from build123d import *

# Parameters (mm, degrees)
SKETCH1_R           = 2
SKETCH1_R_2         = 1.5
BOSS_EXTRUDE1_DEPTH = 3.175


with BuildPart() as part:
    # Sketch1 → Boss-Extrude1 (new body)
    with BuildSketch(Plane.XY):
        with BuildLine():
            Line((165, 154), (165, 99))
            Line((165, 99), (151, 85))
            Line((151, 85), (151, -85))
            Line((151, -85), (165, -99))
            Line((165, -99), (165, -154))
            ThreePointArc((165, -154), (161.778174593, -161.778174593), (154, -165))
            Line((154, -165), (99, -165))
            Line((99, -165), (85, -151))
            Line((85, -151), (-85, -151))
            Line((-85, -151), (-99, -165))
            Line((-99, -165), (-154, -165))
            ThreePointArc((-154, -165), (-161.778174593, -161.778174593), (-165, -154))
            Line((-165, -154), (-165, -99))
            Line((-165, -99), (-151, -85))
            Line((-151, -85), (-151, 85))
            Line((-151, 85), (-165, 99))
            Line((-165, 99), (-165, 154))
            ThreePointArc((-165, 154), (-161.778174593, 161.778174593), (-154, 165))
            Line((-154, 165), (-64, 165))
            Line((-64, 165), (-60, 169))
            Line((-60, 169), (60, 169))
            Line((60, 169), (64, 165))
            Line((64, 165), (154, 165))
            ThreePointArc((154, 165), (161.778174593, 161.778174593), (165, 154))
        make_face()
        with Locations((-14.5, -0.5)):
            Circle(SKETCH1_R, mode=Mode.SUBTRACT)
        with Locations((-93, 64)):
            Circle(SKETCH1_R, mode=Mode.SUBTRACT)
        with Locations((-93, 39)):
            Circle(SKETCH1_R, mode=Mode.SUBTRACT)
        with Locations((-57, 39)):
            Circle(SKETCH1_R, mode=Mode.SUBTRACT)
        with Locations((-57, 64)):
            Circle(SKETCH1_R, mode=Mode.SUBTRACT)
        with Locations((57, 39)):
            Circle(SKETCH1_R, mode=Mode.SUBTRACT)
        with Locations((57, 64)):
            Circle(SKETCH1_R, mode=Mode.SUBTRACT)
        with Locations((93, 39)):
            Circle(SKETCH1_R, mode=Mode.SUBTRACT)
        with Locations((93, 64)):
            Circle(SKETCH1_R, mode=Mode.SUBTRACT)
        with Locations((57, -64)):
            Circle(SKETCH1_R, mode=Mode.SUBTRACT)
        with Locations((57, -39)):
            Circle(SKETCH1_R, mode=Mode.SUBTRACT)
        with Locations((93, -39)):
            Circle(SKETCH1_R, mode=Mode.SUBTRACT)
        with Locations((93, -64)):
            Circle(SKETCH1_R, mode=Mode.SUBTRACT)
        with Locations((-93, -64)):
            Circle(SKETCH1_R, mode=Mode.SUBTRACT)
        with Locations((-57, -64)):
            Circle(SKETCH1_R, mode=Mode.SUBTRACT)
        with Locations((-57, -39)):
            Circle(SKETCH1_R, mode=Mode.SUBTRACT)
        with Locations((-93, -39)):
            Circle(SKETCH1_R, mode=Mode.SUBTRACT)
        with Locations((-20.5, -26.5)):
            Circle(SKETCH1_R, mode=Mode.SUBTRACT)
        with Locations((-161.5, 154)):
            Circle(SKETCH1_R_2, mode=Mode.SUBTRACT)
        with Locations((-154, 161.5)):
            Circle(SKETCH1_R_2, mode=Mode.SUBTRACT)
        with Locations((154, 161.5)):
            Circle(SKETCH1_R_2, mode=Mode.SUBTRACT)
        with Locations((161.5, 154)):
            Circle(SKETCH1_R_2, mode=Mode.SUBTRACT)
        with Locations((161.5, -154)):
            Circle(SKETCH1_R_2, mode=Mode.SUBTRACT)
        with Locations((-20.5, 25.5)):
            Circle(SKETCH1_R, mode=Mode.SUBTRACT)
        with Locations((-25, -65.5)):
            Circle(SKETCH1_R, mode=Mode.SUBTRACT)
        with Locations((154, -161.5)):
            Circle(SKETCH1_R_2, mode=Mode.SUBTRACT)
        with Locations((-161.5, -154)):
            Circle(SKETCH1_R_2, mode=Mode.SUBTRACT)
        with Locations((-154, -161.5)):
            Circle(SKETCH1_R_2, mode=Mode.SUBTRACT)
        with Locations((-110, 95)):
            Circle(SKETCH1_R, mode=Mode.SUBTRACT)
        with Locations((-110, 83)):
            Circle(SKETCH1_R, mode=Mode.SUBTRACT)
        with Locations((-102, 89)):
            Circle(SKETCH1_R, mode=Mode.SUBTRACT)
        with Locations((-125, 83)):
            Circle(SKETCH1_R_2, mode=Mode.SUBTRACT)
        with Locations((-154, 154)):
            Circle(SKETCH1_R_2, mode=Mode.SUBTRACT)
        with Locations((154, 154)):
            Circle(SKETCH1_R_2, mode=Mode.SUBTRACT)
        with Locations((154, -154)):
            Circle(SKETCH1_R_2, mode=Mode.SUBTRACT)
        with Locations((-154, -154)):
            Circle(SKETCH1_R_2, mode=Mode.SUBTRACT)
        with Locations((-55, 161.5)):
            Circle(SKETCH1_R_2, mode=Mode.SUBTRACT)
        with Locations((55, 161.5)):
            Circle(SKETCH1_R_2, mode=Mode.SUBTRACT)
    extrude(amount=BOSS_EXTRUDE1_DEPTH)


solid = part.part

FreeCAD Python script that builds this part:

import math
import FreeCAD as App
import Part
import Sketcher

V = App.Vector

doc = App.newDocument("Part")
body = doc.addObject("PartDesign::Body", "Body")

# Sketch on XY plane
sketch1 = body.newObject("Sketcher::SketchObject", "Sketch")
sketch1.AttachmentSupport = (doc.getObject("XY_Plane"), [""])
sketch1.MapMode = "FlatFace"
sketch1.addGeometry([
    Part.LineSegment(V(165, 99, 0), V(165, 154, 0)),  # 0
    Part.ArcOfCircle(Part.Circle(V(154, 154, 0), V(0, 0, 1), 11), math.radians(0), math.radians(90)),  # 1
    Part.LineSegment(V(154, 165, 0), V(64, 165, 0)),  # 2
    Part.LineSegment(V(64, 165, 0), V(60, 169, 0)),  # 3
    Part.LineSegment(V(60, 169, 0), V(-60, 169, 0)),  # 4
    Part.LineSegment(V(-60, 169, 0), V(-64, 165, 0)),  # 5
    Part.LineSegment(V(-64, 165, 0), V(-154, 165, 0)),  # 6
    Part.ArcOfCircle(Part.Circle(V(-154, 154, 0), V(0, 0, 1), 11), math.radians(90), math.radians(180)),  # 7
    Part.LineSegment(V(-165, 154, 0), V(-165, 99, 0)),  # 8
    Part.LineSegment(V(-165, 99, 0), V(-151, 85, 0)),  # 9
    Part.LineSegment(V(-151, 85, 0), V(-151, -85, 0)),  # 10
    Part.LineSegment(V(-151, -85, 0), V(-165, -99, 0)),  # 11
    Part.LineSegment(V(-165, -99, 0), V(-165, -154, 0)),  # 12
    Part.ArcOfCircle(Part.Circle(V(-154, -154, 0), V(0, 0, 1), 11), math.radians(180), math.radians(270)),  # 13
    Part.LineSegment(V(-154, -165, 0), V(-99, -165, 0)),  # 14
    Part.LineSegment(V(-99, -165, 0), V(-85, -151, 0)),  # 15
    Part.LineSegment(V(-85, -151, 0), V(85, -151, 0)),  # 16
    Part.LineSegment(V(85, -151, 0), V(99, -165, 0)),  # 17
    Part.LineSegment(V(99, -165, 0), V(154, -165, 0)),  # 18
    Part.ArcOfCircle(Part.Circle(V(154, -154, 0), V(0, 0, 1), 11), math.radians(-90), math.radians(0)),  # 19
    Part.LineSegment(V(165, -154, 0), V(165, -99, 0)),  # 20
    Part.LineSegment(V(165, -99, 0), V(151, -85, 0)),  # 21
    Part.LineSegment(V(151, -85, 0), V(151, 85, 0)),  # 22
    Part.LineSegment(V(151, 85, 0), V(165, 99, 0)),  # 23
    Part.Circle(V(154, -161.5, 0), V(0, 0, 1), 1.5),  # 24
    Part.Circle(V(161.5, -154, 0), V(0, 0, 1), 1.5),  # 25
    Part.Circle(V(154, -154, 0), V(0, 0, 1), 1.5),  # 26
    Part.Circle(V(93, -64, 0), V(0, 0, 1), 2),  # 27
    Part.Circle(V(93, -39, 0), V(0, 0, 1), 2),  # 28
    Part.Circle(V(57, -64, 0), V(0, 0, 1), 2),  # 29
    Part.Circle(V(57, -39, 0), V(0, 0, 1), 2),  # 30
    Part.Circle(V(-154, -161.5, 0), V(0, 0, 1), 1.5),  # 31
    Part.Circle(V(-154, -154, 0), V(0, 0, 1), 1.5),  # 32
    Part.Circle(V(-161.5, -154, 0), V(0, 0, 1), 1.5),  # 33
    Part.Circle(V(-25, -65.5, 0), V(0, 0, 1), 2),  # 34
    Part.Circle(V(-57, -64, 0), V(0, 0, 1), 2),  # 35
    Part.Circle(V(-20.5, -26.5, 0), V(0, 0, 1), 2),  # 36
    Part.Circle(V(-14.5, -0.5, 0), V(0, 0, 1), 2),  # 37
    Part.Circle(V(-57, -39, 0), V(0, 0, 1), 2),  # 38
    Part.Circle(V(-93, -64, 0), V(0, 0, 1), 2),  # 39
    Part.Circle(V(-93, -39, 0), V(0, 0, 1), 2),  # 40
    Part.Circle(V(93, 39, 0), V(0, 0, 1), 2),  # 41
    Part.Circle(V(93, 64, 0), V(0, 0, 1), 2),  # 42
    Part.Circle(V(57, 39, 0), V(0, 0, 1), 2),  # 43
    Part.Circle(V(57, 64, 0), V(0, 0, 1), 2),  # 44
    Part.Circle(V(161.5, 154, 0), V(0, 0, 1), 1.5),  # 45
    Part.Circle(V(154, 154, 0), V(0, 0, 1), 1.5),  # 46
    Part.Circle(V(154, 161.5, 0), V(0, 0, 1), 1.5),  # 47
    Part.Circle(V(55, 161.5, 0), V(0, 0, 1), 1.5),  # 48
    Part.Circle(V(-20.5, 25.5, 0), V(0, 0, 1), 2),  # 49
    Part.Circle(V(-57, 39, 0), V(0, 0, 1), 2),  # 50
    Part.Circle(V(-57, 64, 0), V(0, 0, 1), 2),  # 51
    Part.Circle(V(-93, 39, 0), V(0, 0, 1), 2),  # 52
    Part.Circle(V(-93, 64, 0), V(0, 0, 1), 2),  # 53
    Part.Circle(V(-55, 161.5, 0), V(0, 0, 1), 1.5),  # 54
    Part.Circle(V(-110, 83, 0), V(0, 0, 1), 2),  # 55
    Part.Circle(V(-102, 89, 0), V(0, 0, 1), 2),  # 56
    Part.Circle(V(-110, 95, 0), V(0, 0, 1), 2),  # 57
    Part.Circle(V(-125, 83, 0), V(0, 0, 1), 1.5),  # 58
    Part.Circle(V(-154, 154, 0), V(0, 0, 1), 1.5),  # 59
    Part.Circle(V(-161.5, 154, 0), V(0, 0, 1), 1.5),  # 60
    Part.Circle(V(-154, 161.5, 0), V(0, 0, 1), 1.5),  # 61
], False)
sketch1.addConstraint([
    Sketcher.Constraint("Tangent", 0, 2, 1, 1),
    Sketcher.Constraint("Tangent", 1, 2, 2, 1),
    Sketcher.Constraint("Coincident", 2, 2, 3, 1),
    Sketcher.Constraint("Coincident", 3, 2, 4, 1),
    Sketcher.Constraint("Coincident", 4, 2, 5, 1),
    Sketcher.Constraint("Coincident", 5, 2, 6, 1),
    Sketcher.Constraint("Tangent", 6, 2, 7, 1),
    Sketcher.Constraint("Tangent", 7, 2, 8, 1),
    Sketcher.Constraint("Coincident", 8, 2, 9, 1),
    Sketcher.Constraint("Coincident", 9, 2, 10, 1),
    Sketcher.Constraint("Coincident", 10, 2, 11, 1),
    Sketcher.Constraint("Coincident", 11, 2, 12, 1),
    Sketcher.Constraint("Tangent", 12, 2, 13, 1),
    Sketcher.Constraint("Tangent", 13, 2, 14, 1),
    Sketcher.Constraint("Coincident", 14, 2, 15, 1),
    Sketcher.Constraint("Coincident", 15, 2, 16, 1),
    Sketcher.Constraint("Coincident", 16, 2, 17, 1),
    Sketcher.Constraint("Coincident", 17, 2, 18, 1),
    Sketcher.Constraint("Tangent", 18, 2, 19, 1),
    Sketcher.Constraint("Tangent", 19, 2, 20, 1),
    Sketcher.Constraint("Coincident", 20, 2, 21, 1),
    Sketcher.Constraint("Coincident", 21, 2, 22, 1),
    Sketcher.Constraint("Coincident", 22, 2, 23, 1),
    Sketcher.Constraint("Coincident", 23, 2, 0, 1),
    Sketcher.Constraint("Vertical", 0),
    Sketcher.Constraint("Horizontal", 2),
    Sketcher.Constraint("Horizontal", 4),
    Sketcher.Constraint("Horizontal", 6),
    Sketcher.Constraint("Vertical", 8),
    Sketcher.Constraint("Vertical", 10),
    Sketcher.Constraint("Vertical", 12),
    Sketcher.Constraint("Horizontal", 14),
    Sketcher.Constraint("Horizontal", 16),
    Sketcher.Constraint("Horizontal", 18),
    Sketcher.Constraint("Vertical", 20),
    Sketcher.Constraint("Vertical", 22),
    Sketcher.Constraint("Coincident", 26, 3, 19, 3),
    Sketcher.Constraint("Coincident", 32, 3, 13, 3),
    Sketcher.Constraint("Coincident", 46, 3, 1, 3),
    Sketcher.Constraint("Coincident", 59, 3, 7, 3),
    Sketcher.Constraint("Equal", 1, 7),
    Sketcher.Constraint("Equal", 7, 13),
    Sketcher.Constraint("Equal", 13, 19),
    Sketcher.Constraint("Equal", 24, 25),
    Sketcher.Constraint("Equal", 25, 26),
    Sketcher.Constraint("Equal", 27, 28),
    Sketcher.Constraint("Equal", 28, 29),
    Sketcher.Constraint("Equal", 29, 30),
    Sketcher.Constraint("Equal", 26, 31),
    Sketcher.Constraint("Equal", 31, 32),
    Sketcher.Constraint("Equal", 32, 33),
    Sketcher.Constraint("Equal", 30, 34),
    Sketcher.Constraint("Equal", 34, 35),
    Sketcher.Constraint("Equal", 35, 36),
    Sketcher.Constraint("Equal", 36, 37),
    Sketcher.Constraint("Equal", 37, 38),
    Sketcher.Constraint("Equal", 38, 39),
    Sketcher.Constraint("Equal", 39, 40),
    Sketcher.Constraint("Equal", 40, 41),
    Sketcher.Constraint("Equal", 41, 42),
    Sketcher.Constraint("Equal", 42, 43),
    Sketcher.Constraint("Equal", 43, 44),
    Sketcher.Constraint("Equal", 33, 45),
    Sketcher.Constraint("Equal", 45, 46),
    Sketcher.Constraint("Equal", 46, 47),
    Sketcher.Constraint("Equal", 47, 48),
    Sketcher.Constraint("Equal", 44, 49),
    Sketcher.Constraint("Equal", 49, 50),
    Sketcher.Constraint("Equal", 50, 51),
    Sketcher.Constraint("Equal", 51, 52),
    Sketcher.Constraint("Equal", 52, 53),
    Sketcher.Constraint("Equal", 48, 54),
    Sketcher.Constraint("Equal", 53, 55),
    Sketcher.Constraint("Equal", 55, 56),
    Sketcher.Constraint("Equal", 56, 57),
    Sketcher.Constraint("Equal", 54, 58),
    Sketcher.Constraint("Equal", 58, 59),
    Sketcher.Constraint("Equal", 59, 60),
    Sketcher.Constraint("Equal", 60, 61),
    Sketcher.Constraint("Symmetric", 1, 3, 13, 3, -1, 1),
    Sketcher.Constraint("Symmetric", 7, 3, 19, 3, -1, 1),
    Sketcher.Constraint("Symmetric", 40, 3, 41, 3, -1, 1),
    Sketcher.Constraint("Symmetric", 39, 3, 42, 3, -1, 1),
    Sketcher.Constraint("Symmetric", 38, 3, 43, 3, -1, 1),
    Sketcher.Constraint("Symmetric", 35, 3, 44, 3, -1, 1),
    Sketcher.Constraint("Symmetric", 33, 3, 45, 3, -1, 1),
    Sketcher.Constraint("Symmetric", 31, 3, 47, 3, -1, 1),
    Sketcher.Constraint("Symmetric", 30, 3, 50, 3, -1, 1),
    Sketcher.Constraint("Symmetric", 29, 3, 51, 3, -1, 1),
    Sketcher.Constraint("Symmetric", 28, 3, 52, 3, -1, 1),
    Sketcher.Constraint("Symmetric", 27, 3, 53, 3, -1, 1),
    Sketcher.Constraint("Symmetric", 25, 3, 60, 3, -1, 1),
    Sketcher.Constraint("Symmetric", 24, 3, 61, 3, -1, 1),
    Sketcher.Constraint("Symmetric", 9, 2, 21, 2, -1, 1),
    Sketcher.Constraint("Symmetric", 1, 3, 7, 3, -2),
    Sketcher.Constraint("Symmetric", 24, 3, 31, 3, -2),
    Sketcher.Constraint("Symmetric", 25, 3, 33, 3, -2),
    Sketcher.Constraint("Symmetric", 29, 3, 35, 3, -2),
    Sketcher.Constraint("Symmetric", 30, 3, 38, 3, -2),
    Sketcher.Constraint("Symmetric", 27, 3, 39, 3, -2),
    Sketcher.Constraint("Symmetric", 28, 3, 40, 3, -2),
    Sketcher.Constraint("Symmetric", 48, 3, 54, 3, -2),
    Sketcher.Constraint("Perpendicular", 3, 5),
    Sketcher.Constraint("Perpendicular", 5, 9),
    Sketcher.Constraint("Perpendicular", 9, 11),
    Sketcher.Constraint("Parallel", 11, 15),
    Sketcher.Constraint("Perpendicular", 15, 17),
    Sketcher.Constraint("Parallel", 17, 21),
    Sketcher.Constraint("Perpendicular", 21, 23),
    Sketcher.Constraint("Horizontal", 19, 3, 25, 3),
    Sketcher.Constraint("Horizontal", 27, 3, 29, 3),
    Sketcher.Constraint("Horizontal", 28, 3, 30, 3),
    Sketcher.Constraint("Horizontal", 47, 3, 48, 3),
    Sketcher.Constraint("Horizontal", 55, 3, 58, 3),
    Sketcher.Constraint("Horizontal", 11, 2, 20, 2),
    Sketcher.Constraint("Horizontal", 10, 2, 21, 2),
    Sketcher.Constraint("Horizontal", 9, 2, 22, 2),
    Sketcher.Constraint("Vertical", 19, 3, 24, 3),
    Sketcher.Constraint("Vertical", 27, 3, 28, 3),
    Sketcher.Constraint("Vertical", 29, 3, 30, 3),
    Sketcher.Constraint("Vertical", 36, 3, 49, 3),
    Sketcher.Constraint("Vertical", 55, 3, 57, 3),
    Sketcher.Constraint("Equal", 2, 6),
    Sketcher.Constraint("Equal", 14, 18),
    Sketcher.Constraint("Equal", 18, 0),
    Sketcher.Constraint("Equal", 16, 10),
    Sketcher.Constraint("Equal", 11, 15),
    Sketcher.Constraint("Diameter", 24, 3.0),
    Sketcher.Constraint("Diameter", 27, 4.0),
    Sketcher.Constraint("Radius", 1, 11.0),
    Sketcher.Constraint("DistanceX", 2, 2, 2, 1, 90.0),
    Sketcher.Constraint("DistanceX", 4, 2, 4, 1, 120.0),
    Sketcher.Constraint("DistanceX", 14, 1, 14, 2, 55.0),
    Sketcher.Constraint("DistanceX", 16, 1, 16, 2, 170.0),
    Sketcher.Constraint("DistanceX", -1, 1, 1, 3, 154.0),
    Sketcher.Constraint("DistanceX", -1, 1, 27, 3, 93.0),
    Sketcher.Constraint("DistanceY", 27, 3, -1, 1, 64.0),
    Sketcher.Constraint("DistanceY", 28, 3, -1, 1, 39.0),
    Sketcher.Constraint("DistanceX", -1, 1, 29, 3, 57.0),
    Sketcher.Constraint("DistanceX", 34, 3, -1, 1, 25.0),
    Sketcher.Constraint("DistanceX", -1, 1, 48, 3, 55.0),
    Sketcher.Constraint("DistanceX", 55, 3, -1, 1, 110.0),
    Sketcher.Constraint("DistanceY", -1, 1, 55, 3, 83.0),
    Sketcher.Constraint("DistanceX", 56, 3, -1, 1, 102.0),
    Sketcher.Constraint("DistanceY", -1, 1, 56, 3, 89.0),
    Sketcher.Constraint("DistanceY", -1, 1, 57, 3, 95.0),
    Sketcher.Constraint("DistanceX", 58, 3, -1, 1, 125.0),
    Sketcher.Constraint("DistanceY", 24, 3, -1, 1, 161.5),
    Sketcher.Constraint("DistanceX", -1, 1, 25, 3, 161.5),
    Sketcher.Constraint("DistanceY", 34, 3, -1, 1, 65.5),
    Sketcher.Constraint("DistanceX", 36, 3, -1, 1, 20.5),
    Sketcher.Constraint("DistanceY", 36, 3, -1, 1, 26.5),
    Sketcher.Constraint("DistanceX", 37, 3, -1, 1, 14.5),
    Sketcher.Constraint("DistanceY", 37, 3, -1, 1, 0.5),
    Sketcher.Constraint("DistanceY", -1, 1, 49, 3, 25.5),
])
pad1 = body.newObject("PartDesign::Pad", "Pad")
pad1.Profile = sketch1
pad1.Length = 3.175

doc.recompute()
